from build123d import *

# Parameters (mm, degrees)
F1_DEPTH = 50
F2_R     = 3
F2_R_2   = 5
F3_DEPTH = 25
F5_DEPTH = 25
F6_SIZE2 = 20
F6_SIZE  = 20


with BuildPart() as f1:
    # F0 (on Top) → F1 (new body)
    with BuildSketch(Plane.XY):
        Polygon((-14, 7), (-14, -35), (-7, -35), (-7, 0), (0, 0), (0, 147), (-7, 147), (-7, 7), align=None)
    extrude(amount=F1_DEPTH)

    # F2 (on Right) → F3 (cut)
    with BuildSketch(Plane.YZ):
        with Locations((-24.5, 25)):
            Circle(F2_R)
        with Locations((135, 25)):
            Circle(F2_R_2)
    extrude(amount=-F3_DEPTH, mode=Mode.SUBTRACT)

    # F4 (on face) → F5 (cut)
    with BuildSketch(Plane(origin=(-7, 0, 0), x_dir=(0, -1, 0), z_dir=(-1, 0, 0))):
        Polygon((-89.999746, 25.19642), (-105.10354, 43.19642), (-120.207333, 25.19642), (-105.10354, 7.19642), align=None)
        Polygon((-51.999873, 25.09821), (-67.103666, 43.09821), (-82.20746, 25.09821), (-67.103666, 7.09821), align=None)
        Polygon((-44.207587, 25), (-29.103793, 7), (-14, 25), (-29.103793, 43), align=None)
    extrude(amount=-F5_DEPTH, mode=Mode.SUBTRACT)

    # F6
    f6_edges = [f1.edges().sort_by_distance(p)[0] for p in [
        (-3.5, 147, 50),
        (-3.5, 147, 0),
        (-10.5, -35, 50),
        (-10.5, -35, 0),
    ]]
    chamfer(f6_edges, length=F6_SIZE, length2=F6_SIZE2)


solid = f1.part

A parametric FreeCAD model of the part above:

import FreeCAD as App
import Part
import Sketcher
from FreeCAD import Vector
Q = App.Units.Quantity


def edges_at(feature, points):
    """Names of the edges that pass closest to the given points."""
    edges = feature.Shape.Edges
    near = lambda p: min(range(len(edges)), key=lambda i: edges[i].distToShape(Part.Vertex(*p))[0])
    return sorted({f"Edge{near(p) + 1}" for p in points})

doc = App.newDocument("Part")
body = doc.addObject("PartDesign::Body", "Body")

sketch1 = body.newObject("Sketcher::SketchObject", "Sketch")
sketch1.AttachmentSupport = (doc.getObject("XY_Plane"), [""])
sketch1.MapMode = "FlatFace"
sketch1.addGeometry([
    Part.LineSegment(Vector(-14, 7, 0), Vector(-14, -35, 0)),
    Part.LineSegment(Vector(-14, -35, 0), Vector(-7, -35, 0)),
    Part.LineSegment(Vector(-7, -35, 0), Vector(-7, 0, 0)),
    Part.LineSegment(Vector(-7, 0, 0), Vector(0, 0, 0)),
    Part.LineSegment(Vector(0, 0, 0), Vector(0, 147, 0)),
    Part.LineSegment(Vector(0, 147, 0), Vector(-7, 147, 0)),
    Part.LineSegment(Vector(-7, 147, 0), Vector(-7, 7, 0)),
    Part.LineSegment(Vector(-7, 7, 0), Vector(-14, 7, 0)),
], False)
sketch1.addConstraint([
    Sketcher.Constraint("Coincident", 0, 2, 1, 1),
    Sketcher.Constraint("Coincident", 1, 2, 2, 1),
    Sketcher.Constraint("Coincident", 2, 2, 3, 1),
    Sketcher.Constraint("Coincident", 3, 2, 4, 1),
    Sketcher.Constraint("Coincident", 4, 2, 5, 1),
    Sketcher.Constraint("Coincident", 5, 2, 6, 1),
    Sketcher.Constraint("Coincident", 6, 2, 7, 1),
    Sketcher.Constraint("Coincident", 7, 2, 0, 1),
    Sketcher.Constraint("Vertical", 0),
    Sketcher.Constraint("Horizontal", 1),
    Sketcher.Constraint("Vertical", 2),
    Sketcher.Constraint("Horizontal", 3),
    Sketcher.Constraint("Vertical", 4),
    Sketcher.Constraint("Horizontal", 5),
    Sketcher.Constraint("Vertical", 6),
    Sketcher.Constraint("Horizontal", 7),
    Sketcher.Constraint("Coincident", 3, 2, -1, 1),
    Sketcher.Constraint("Vertical", 2, 2, 5, 2),
    Sketcher.Constraint("Equal", 1, 3),
    Sketcher.Constraint("DistanceX", 1, 1, 1, 2, 7.0),
    Sketcher.Constraint("DistanceY", 0, 2, 0, 1, 42.0),
    Sketcher.Constraint("DistanceY", 2, 1, 2, 2, 35.0),
    Sketcher.Constraint("DistanceY", 4, 1, 4, 2, 147.0),
])
pad1 = body.newObject("PartDesign::Pad", "Pad")
pad1.Profile = sketch1
pad1.Length = 50

sketch2 = body.newObject("Sketcher::SketchObject", "Sketch001")
sketch2.AttachmentSupport = (doc.getObject("YZ_Plane"), [""])
sketch2.MapMode = "FlatFace"
sketch2.addGeometry([
    Part.Circle(Vector(-24.5, 25, 0), Vector(0, 0, 1), 3),
    Part.Circle(Vector(135, 25, 0), Vector(0, 0, 1), 5),
], False)
sketch2.addConstraint([
    Sketcher.Constraint("Horizontal", 0, 3, 1, 3),
    Sketcher.Constraint("Diameter", 0, 6.0),
    Sketcher.Constraint("Diameter", 1, 10.0),
    Sketcher.Constraint("DistanceY", -1, 1, 0, 3, 25.0),
    Sketcher.Constraint("DistanceX", -1, 1, 1, 3, 135.0),
    Sketcher.Constraint("DistanceX", 0, 3, -1, 1, 24.5),
])
pocket1 = body.newObject("PartDesign::Pocket", "Pocket")
pocket1.Profile = sketch2
pocket1.Length = 25

sketch3 = body.newObject("Sketcher::SketchObject", "Sketch002")
sketch3.AttachmentSupport = (doc.getObject("YZ_Plane"), [""])
sketch3.MapMode = "FlatFace"
sketch3.AttachmentOffset = App.Placement(Vector(0, 0, -7), App.Rotation())
sketch3.addGeometry([
    Part.LineSegment(Vector(89.999746, 25.19642, 0), Vector(105.10354, 43.19642, 0)),
    Part.LineSegment(Vector(105.10354, 43.19642, 0), Vector(120.207333, 25.19642, 0)),
    Part.LineSegment(Vector(120.207333, 25.19642, 0), Vector(105.10354, 7.19642, 0)),
    Part.LineSegment(Vector(105.10354, 7.19642, 0), Vector(89.999746, 25.19642, 0)),
    Part.LineSegment(Vector(51.999873, 25.09821, 0), Vector(67.103666, 43.09821, 0)),
    Part.LineSegment(Vector(67.103666, 43.09821, 0), Vector(82.20746, 25.09821, 0)),
    Part.LineSegment(Vector(82.20746, 25.09821, 0), Vector(67.103666, 7.09821, 0)),
    Part.LineSegment(Vector(67.103666, 7.09821, 0), Vector(51.999873, 25.09821, 0)),
    Part.LineSegment(Vector(44.207587, 25, 0), Vector(29.103793, 7, 0)),
    Part.LineSegment(Vector(29.103793, 7, 0), Vector(14, 25, 0)),
    Part.LineSegment(Vector(14, 25, 0), Vector(29.103793, 43, 0)),
    Part.LineSegment(Vector(29.103793, 43, 0), Vector(44.207587, 25, 0)),
], False)
sketch3.addConstraint([
    Sketcher.Constraint("Coincident", 0, 2, 1, 1),
    Sketcher.Constraint("Coincident", 1, 2, 2, 1),
    Sketcher.Constraint("Coincident", 2, 2, 3, 1),
    Sketcher.Constraint("Coincident", 3, 2, 0, 1),
    Sketcher.Constraint("Coincident", 4, 2, 5, 1),
    Sketcher.Constraint("Coincident", 5, 2, 6, 1),
    Sketcher.Constraint("Coincident", 6, 2, 7, 1),
    Sketcher.Constraint("Coincident", 7, 2, 4, 1),
    Sketcher.Constraint("Coincident", 8, 2, 9, 1),
    Sketcher.Constraint("Coincident", 9, 2, 10, 1),
    Sketcher.Constraint("Coincident", 10, 2, 11, 1),
    Sketcher.Constraint("Coincident", 11, 2, 8, 1),
    Sketcher.Constraint("Parallel", 0, 2),
    Sketcher.Constraint("Parallel", 1, 3),
    Sketcher.Constraint("Parallel", 2, 4),
    Sketcher.Constraint("Parallel", 3, 5),
    Sketcher.Constraint("Parallel", 4, 6),
    Sketcher.Constraint("Parallel", 5, 7),
    Sketcher.Constraint("Parallel", 6, 8),
    Sketcher.Constraint("Parallel", 7, 9),
    Sketcher.Constraint("Parallel", 8, 10),
    Sketcher.Constraint("Parallel", 9, 11),
    Sketcher.Constraint("Horizontal", 1, 2, 3, 2),
    Sketcher.Constraint("Horizontal", 5, 2, 7, 2),
    Sketcher.Constraint("Horizontal", 9, 2, 11, 2),
    Sketcher.Constraint("Vertical", 0, 2, 2, 2),
    Sketcher.Constraint("Equal", 3, 4),
    Sketcher.Constraint("Equal", 7, 8),
    Sketcher.Constraint("Angle", 0, Q("49.999999 deg")),
    Sketcher.Constraint("DistanceY", -1, 1, 8, 2, 7.0),
    Sketcher.Constraint("DistanceX", -1, 1, 9, 2, 14.0),
    Sketcher.Constraint("DistanceY", -1, 1, 9, 2, 25.0),
    Sketcher.Constraint("DistanceX", -1, 1, 0, 2, 105.10354),
    Sketcher.Constraint("DistanceY", -1, 1, 0, 2, 43.19642),
    Sketcher.Constraint("DistanceY", -1, 1, 4, 2, 43.09821),
    Sketcher.Constraint("DistanceX", -1, 1, 5, 2, 82.20746),
])
pocket2 = body.newObject("PartDesign::Pocket", "Pocket001")
pocket2.Profile = sketch3
pocket2.Length = 25
pocket2.Reversed = True
doc.recompute()

chamfer = body.newObject("PartDesign::Chamfer", "Chamfer")
chamfer.Base = (pocket2, edges_at(pocket2, [
    (-3.5, 147, 50),
    (-3.5, 147, 0),
    (-10.5, -35, 50),
    (-10.5, -35, 0),
]))
chamfer.ChamferType = "Two distances"
chamfer.Size = 20
chamfer.Size2 = 20

doc.recompute()
